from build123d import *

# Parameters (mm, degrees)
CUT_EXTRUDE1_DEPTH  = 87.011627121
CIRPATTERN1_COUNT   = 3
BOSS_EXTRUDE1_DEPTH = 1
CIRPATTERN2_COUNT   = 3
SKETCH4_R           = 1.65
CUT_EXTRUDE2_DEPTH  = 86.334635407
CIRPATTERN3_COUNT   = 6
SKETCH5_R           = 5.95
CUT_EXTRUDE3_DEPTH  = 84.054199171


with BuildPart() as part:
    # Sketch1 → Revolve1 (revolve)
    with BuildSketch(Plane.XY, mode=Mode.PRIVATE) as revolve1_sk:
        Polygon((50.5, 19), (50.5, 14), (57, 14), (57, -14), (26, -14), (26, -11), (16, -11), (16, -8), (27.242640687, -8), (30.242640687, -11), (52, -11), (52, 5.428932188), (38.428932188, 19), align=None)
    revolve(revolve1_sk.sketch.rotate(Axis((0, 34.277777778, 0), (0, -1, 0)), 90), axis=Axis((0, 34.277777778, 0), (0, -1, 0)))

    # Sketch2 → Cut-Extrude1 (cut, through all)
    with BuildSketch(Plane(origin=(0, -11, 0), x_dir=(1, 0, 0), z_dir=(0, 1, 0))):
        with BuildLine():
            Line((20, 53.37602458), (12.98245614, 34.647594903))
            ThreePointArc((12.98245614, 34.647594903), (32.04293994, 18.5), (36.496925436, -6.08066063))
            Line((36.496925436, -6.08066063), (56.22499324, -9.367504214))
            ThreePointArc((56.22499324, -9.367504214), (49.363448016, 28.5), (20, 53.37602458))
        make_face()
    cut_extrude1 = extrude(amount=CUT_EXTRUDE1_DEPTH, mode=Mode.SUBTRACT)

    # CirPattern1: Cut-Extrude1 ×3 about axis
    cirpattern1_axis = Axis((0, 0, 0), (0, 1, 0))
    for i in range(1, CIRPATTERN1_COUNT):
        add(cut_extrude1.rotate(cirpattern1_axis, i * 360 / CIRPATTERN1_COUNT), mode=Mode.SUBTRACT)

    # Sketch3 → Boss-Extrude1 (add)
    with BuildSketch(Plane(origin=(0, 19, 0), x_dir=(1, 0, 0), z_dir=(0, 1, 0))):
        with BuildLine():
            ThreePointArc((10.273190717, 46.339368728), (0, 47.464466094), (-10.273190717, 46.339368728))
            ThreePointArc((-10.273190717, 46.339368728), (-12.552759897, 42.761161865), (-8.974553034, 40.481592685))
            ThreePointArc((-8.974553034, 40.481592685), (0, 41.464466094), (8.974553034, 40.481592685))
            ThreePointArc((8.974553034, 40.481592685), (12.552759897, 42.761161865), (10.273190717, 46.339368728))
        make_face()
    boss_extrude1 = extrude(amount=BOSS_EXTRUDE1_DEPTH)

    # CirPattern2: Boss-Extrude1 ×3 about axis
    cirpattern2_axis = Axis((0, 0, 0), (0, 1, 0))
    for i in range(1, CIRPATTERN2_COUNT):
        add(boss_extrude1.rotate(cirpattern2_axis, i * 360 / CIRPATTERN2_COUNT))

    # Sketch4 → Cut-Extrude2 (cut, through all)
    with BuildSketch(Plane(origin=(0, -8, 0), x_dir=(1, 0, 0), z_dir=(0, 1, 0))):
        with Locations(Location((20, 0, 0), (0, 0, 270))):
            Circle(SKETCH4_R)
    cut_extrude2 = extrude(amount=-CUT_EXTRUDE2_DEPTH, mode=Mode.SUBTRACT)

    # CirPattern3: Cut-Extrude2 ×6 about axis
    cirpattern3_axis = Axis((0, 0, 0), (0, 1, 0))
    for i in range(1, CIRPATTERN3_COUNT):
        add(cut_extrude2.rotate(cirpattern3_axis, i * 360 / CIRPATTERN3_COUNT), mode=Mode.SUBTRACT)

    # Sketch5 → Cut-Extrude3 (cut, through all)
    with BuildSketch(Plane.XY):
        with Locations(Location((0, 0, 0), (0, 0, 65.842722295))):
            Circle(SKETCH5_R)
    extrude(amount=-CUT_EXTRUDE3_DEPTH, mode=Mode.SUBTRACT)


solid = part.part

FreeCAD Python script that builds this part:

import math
import FreeCAD as App
import Part
import Sketcher
Q = App.Units.Quantity


def add_polygon(sketch, points):
    """Adds a closed chain of lines whose ends are joined by coincident constraints."""
    first, n = sketch.GeometryCount, len(points)
    for a, b in zip(points, points[1:] + points[:1]):
        sketch.addGeometry(Part.LineSegment(App.Vector(*a, 0), App.Vector(*b, 0)), False)
    for i in range(n):
        sketch.addConstraint(Sketcher.Constraint("Coincident", first + i, 2, first + (i + 1) % n, 1))

doc = App.newDocument("Part")
params = doc.addObject("Spreadsheet::Sheet", "Params")
for row, (alias, value) in enumerate([
    ("sketch1_width", "10 mm"),
    ("sketch1_width2", "31 mm"),
    ("sketch1_height", "5 mm"),
    ("sketch1_height2", "3 mm"),
    ("sketch1_height3", "28 mm"),
    ("revolution_angle", "360 deg"),
    ("sketch2_radius", "37 mm"),
    ("sketch2_radius2", "57 mm"),
    ("sketch3_radius", "3 mm"),
    ("pad1_length", "1 mm"),
    ("sketch4_diameter", "3.3 mm"),
    ("sketch5_diameter", "11.9 mm"),
], start=1):
    params.set(f"A{row}", alias)
    params.set(f"B{row}", "=" + value)
    params.setAlias(f"B{row}", alias)

body = doc.addObject("PartDesign::Body", "Body")

# Sketch on XY plane
sketch1 = doc.addObject("Sketcher::SketchObject", "Sketch")
body.addObject(sketch1)
sketch1.AttachmentSupport = (doc.XY_Plane, [""])
sketch1.MapMode = "FlatFace"
add_polygon(sketch1, [(50.5, 14), (50.5, 19), (38.4, 19), (52, 5.4), (52, -11), (30.2, -11), (27.2, -8), (16, -8), (16, -11), (26, -11), (26, -14), (57, -14), (57, 14)])  # lines 0-12
sketch1.addConstraint(Sketcher.Constraint("Vertical", 0))
sketch1.addConstraint(Sketcher.Constraint("Horizontal", 1))
sketch1.addConstraint(Sketcher.Constraint("Vertical", 3))
sketch1.addConstraint(Sketcher.Constraint("Horizontal", 4))
sketch1.addConstraint(Sketcher.Constraint("Horizontal", 6))
sketch1.addConstraint(Sketcher.Constraint("Vertical", 7))
sketch1.addConstraint(Sketcher.Constraint("Horizontal", 8))
sketch1.addConstraint(Sketcher.Constraint("Vertical", 9))
sketch1.addConstraint(Sketcher.Constraint("Horizontal", 10))
sketch1.addConstraint(Sketcher.Constraint("Vertical", 11))
sketch1.addConstraint(Sketcher.Constraint("Horizontal", 12))
sketch1.addConstraint(Sketcher.Constraint("Parallel", 2, 5))
sketch1.addConstraint(Sketcher.Constraint("Horizontal", 4, 2, 7, 2))
sketch1.addConstraint(Sketcher.Constraint("Equal", 7, 9))
sketch1.addConstraint(Sketcher.Constraint("DistanceX", 8, 1, 8, 2, 10.0))
sketch1.addConstraint(Sketcher.Constraint("DistanceX", 10, 1, 10, 2, 31.0))
sketch1.addConstraint(Sketcher.Constraint("DistanceY", 0, 1, 0, 2, 5.0))
sketch1.addConstraint(Sketcher.Constraint("DistanceY", 7, 2, 7, 1, 3.0))
sketch1.addConstraint(Sketcher.Constraint("DistanceY", 11, 1, 11, 2, 28.0))
sketch1.addConstraint(Sketcher.Constraint("Angle", 2, Q("-45 deg")))
sketch1.addConstraint(Sketcher.Constraint("DistanceX", 12, 2, 12, 1, 6.5))
sketch1.addConstraint(Sketcher.Constraint("DistanceY", -1, 1, 0, 2, 19.0))
sketch1.addConstraint(Sketcher.Constraint("DistanceX", -1, 1, 2, 2, 52.0))
sketch1.addConstraint(Sketcher.Constraint("DistanceX", -1, 1, 6, 2, 16.0))
sketch1.addConstraint(Sketcher.Constraint("DistanceX", 4, 2, 4, 1, 21.757359))
sketch1.addConstraint(Sketcher.Constraint("Distance", 2, 19.192388))
sketch1.setExpression("Constraints[27]", "Params.sketch1_width")
sketch1.setExpression("Constraints[28]", "Params.sketch1_width2")
sketch1.setExpression("Constraints[29]", "Params.sketch1_height")
sketch1.setExpression("Constraints[30]", "Params.sketch1_height2")
sketch1.setExpression("Constraints[31]", "Params.sketch1_height3")
revolution = doc.addObject("PartDesign::Revolution", "Revolution")
body.addObject(revolution)
revolution.Profile = sketch1
revolution.ReferenceAxis = (sketch1, ["V_Axis"])
revolution.setExpression("Angle", "Params.revolution_angle")

# Sketch on XZ plane
sketch2 = doc.addObject("Sketcher::SketchObject", "Sketch001")
body.addObject(sketch2)
sketch2.AttachmentSupport = (doc.XZ_Plane, [""])
sketch2.MapMode = "FlatFace"
sketch2.AttachmentOffset = App.Placement(App.Vector(0, 0, 11), App.Rotation())
sketch2.addGeometry(Part.LineSegment(App.Vector(20, -53, 0), App.Vector(13, -35, 0)), False)
sketch2.addGeometry(Part.ArcOfCircle(Part.Circle(App.Vector(0, 0, 0), App.Vector(0, 0, 1), 37), math.radians(-69), math.radians(9)), False)
sketch2.addGeometry(Part.LineSegment(App.Vector(36, 6, 0), App.Vector(56, 9, 0)), False)
sketch2.addGeometry(Part.ArcOfCircle(Part.Circle(App.Vector(0, 0, 0), App.Vector(0, 0, 1), 57), math.radians(-69), math.radians(9)), False)
sketch2.addConstraint(Sketcher.Constraint("Coincident", 0, 2, 1, 1))
sketch2.addConstraint(Sketcher.Constraint("Coincident", 1, 2, 2, 1))
sketch2.addConstraint(Sketcher.Constraint("Coincident", 2, 2, 3, 2))
sketch2.addConstraint(Sketcher.Constraint("Coincident", 3, 1, 0, 1))
sketch2.addConstraint(Sketcher.Constraint("Coincident", 1, 3, -1, 1))
sketch2.addConstraint(Sketcher.Constraint("Coincident", 3, 3, -1, 1))
sketch2.addConstraint(Sketcher.Constraint("Radius", 1, 37.0))
sketch2.addConstraint(Sketcher.Constraint("Radius", 3, 57.0))
sketch2.addConstraint(Sketcher.Constraint("DistanceX", -1, 1, 3, 1, 20.0))
sketch2.addConstraint(Sketcher.Constraint("DistanceY", 0, 2, 2, 2, 44.015099))
sketch2.addConstraint(Sketcher.Constraint("DistanceY", -1, 1, 1, 2, 6.080661))
sketch2.addConstraint(Sketcher.Constraint("DistanceX", 0, 2, 1, 2, 23.514469))
sketch2.setExpression("Constraints[6]", "Params.sketch2_radius")
sketch2.setExpression("Constraints[7]", "Params.sketch2_radius2")
pocket1 = doc.addObject("PartDesign::Pocket", "Pocket")
body.addObject(pocket1)
pocket1.Profile = sketch2
pocket1.Type = "ThroughAll"
doc.recompute()

polarpattern = doc.addObject("PartDesign::PolarPattern", "PolarPattern")
body.addObject(polarpattern)
polarpattern.Originals = [pocket1]
polarpattern.Axis = (doc.Y_Axis, [""])
polarpattern.Angle = 360
polarpattern.Occurrences = 3
body.Tip = polarpattern

# Sketch on XZ plane
sketch3 = doc.addObject("Sketcher::SketchObject", "Sketch002")
body.addObject(sketch3)
sketch3.AttachmentSupport = (doc.XZ_Plane, [""])
sketch3.MapMode = "FlatFace"
sketch3.AttachmentOffset = App.Placement(App.Vector(0, 0, -19), App.Rotation())
sketch3.addGeometry(Part.ArcOfCircle(Part.Circle(App.Vector(0, 0, 0), App.Vector(0, 0, 1), 47.5), math.radians(-102), math.radians(-78)), False)
sketch3.addGeometry(Part.ArcOfCircle(Part.Circle(App.Vector(-9.6, -43.4, 0), App.Vector(0, 0, 1), 3), math.radians(77), math.radians(258)), False)
sketch3.addGeometry(Part.ArcOfCircle(Part.Circle(App.Vector(0, 0, 0), App.Vector(0, 0, 1), 41.5), math.radians(-102), math.radians(-78)), False)
sketch3.addGeometry(Part.ArcOfCircle(Part.Circle(App.Vector(9.6, -43.4, 0), App.Vector(0, 0, 1), 3), math.radians(-78), math.radians(103)), False)
sketch3.addConstraint(Sketcher.Constraint("Tangent", 0, 1, 1, 2))
sketch3.addConstraint(Sketcher.Constraint("Tangent", 1, 1, 2, 1))
sketch3.addConstraint(Sketcher.Constraint("Tangent", 2, 2, 3, 2))
sketch3.addConstraint(Sketcher.Constraint("Tangent", 3, 1, 0, 2))
sketch3.addConstraint(Sketcher.Constraint("Coincident", 0, 3, -1, 1))
sketch3.addConstraint(Sketcher.Constraint("Coincident", 2, 3, -1, 1))
sketch3.addConstraint(Sketcher.Constraint("Horizontal", 1, 3, 3, 3))
sketch3.addConstraint(Sketcher.Constraint("Radius", 1, 3.0))
sketch3.addConstraint(Sketcher.Constraint("Radius", 0, 47.464466))
sketch3.addConstraint(Sketcher.Constraint("DistanceX", 1, 3, -1, 1, 9.623872))
sketch3.setExpression("Constraints[7]", "Params.sketch3_radius")
pad1 = doc.addObject("PartDesign::Pad", "Pad")
body.addObject(pad1)
pad1.Profile = sketch3
pad1.setExpression("Length", "Params.pad1_length")
pad1.Reversed = True
doc.recompute()

polarpattern2 = doc.addObject("PartDesign::PolarPattern", "PolarPattern001")
body.addObject(polarpattern2)
polarpattern2.Originals = [pad1]
polarpattern2.Axis = (doc.Y_Axis, [""])
polarpattern2.Angle = 360
polarpattern2.Occurrences = 3
body.Tip = polarpattern2

# Sketch on XZ plane
sketch4 = doc.addObject("Sketcher::SketchObject", "Sketch003")
body.addObject(sketch4)
sketch4.AttachmentSupport = (doc.XZ_Plane, [""])
sketch4.MapMode = "FlatFace"
sketch4.AttachmentOffset = App.Placement(App.Vector(0, 0, 8), App.Rotation())
sketch4.addGeometry(Part.Circle(App.Vector(20, 0, 0), App.Vector(0, 0, 1), 1.6), False)
sketch4.addConstraint(Sketcher.Constraint("PointOnObject", 0, 3, -1))
sketch4.addConstraint(Sketcher.Constraint("Diameter", 0, 3.3))
sketch4.addConstraint(Sketcher.Constraint("DistanceX", -1, 1, 0, 3, 20.0))
sketch4.setExpression("Constraints[1]", "Params.sketch4_diameter")
pocket2 = doc.addObject("PartDesign::Pocket", "Pocket001")
body.addObject(pocket2)
pocket2.Profile = sketch4
pocket2.Type = "ThroughAll"
pocket2.Reversed = True
doc.recompute()

polarpattern3 = doc.addObject("PartDesign::PolarPattern", "PolarPattern002")
body.addObject(polarpattern3)
polarpattern3.Originals = [pocket2]
polarpattern3.Axis = (doc.Y_Axis, [""])
polarpattern3.Angle = 360
polarpattern3.Occurrences = 6
body.Tip = polarpattern3

# Sketch on XY plane
sketch5 = doc.addObject("Sketcher::SketchObject", "Sketch004")
body.addObject(sketch5)
sketch5.AttachmentSupport = (doc.XY_Plane, [""])
sketch5.MapMode = "FlatFace"
sketch5.addGeometry(Part.Circle(App.Vector(0, 0, 0), App.Vector(0, 0, 1), 6), False)
sketch5.addConstraint(Sketcher.Constraint("Coincident", 0, 3, -1, 1))
sketch5.addConstraint(Sketcher.Constraint("Diameter", 0, 11.9))
sketch5.setExpression("Constraints[1]", "Params.sketch5_diameter")
pocket3 = doc.addObject("PartDesign::Pocket", "Pocket002")
body.addObject(pocket3)
pocket3.Profile = sketch5
pocket3.Type = "ThroughAll"

doc.recompute()
